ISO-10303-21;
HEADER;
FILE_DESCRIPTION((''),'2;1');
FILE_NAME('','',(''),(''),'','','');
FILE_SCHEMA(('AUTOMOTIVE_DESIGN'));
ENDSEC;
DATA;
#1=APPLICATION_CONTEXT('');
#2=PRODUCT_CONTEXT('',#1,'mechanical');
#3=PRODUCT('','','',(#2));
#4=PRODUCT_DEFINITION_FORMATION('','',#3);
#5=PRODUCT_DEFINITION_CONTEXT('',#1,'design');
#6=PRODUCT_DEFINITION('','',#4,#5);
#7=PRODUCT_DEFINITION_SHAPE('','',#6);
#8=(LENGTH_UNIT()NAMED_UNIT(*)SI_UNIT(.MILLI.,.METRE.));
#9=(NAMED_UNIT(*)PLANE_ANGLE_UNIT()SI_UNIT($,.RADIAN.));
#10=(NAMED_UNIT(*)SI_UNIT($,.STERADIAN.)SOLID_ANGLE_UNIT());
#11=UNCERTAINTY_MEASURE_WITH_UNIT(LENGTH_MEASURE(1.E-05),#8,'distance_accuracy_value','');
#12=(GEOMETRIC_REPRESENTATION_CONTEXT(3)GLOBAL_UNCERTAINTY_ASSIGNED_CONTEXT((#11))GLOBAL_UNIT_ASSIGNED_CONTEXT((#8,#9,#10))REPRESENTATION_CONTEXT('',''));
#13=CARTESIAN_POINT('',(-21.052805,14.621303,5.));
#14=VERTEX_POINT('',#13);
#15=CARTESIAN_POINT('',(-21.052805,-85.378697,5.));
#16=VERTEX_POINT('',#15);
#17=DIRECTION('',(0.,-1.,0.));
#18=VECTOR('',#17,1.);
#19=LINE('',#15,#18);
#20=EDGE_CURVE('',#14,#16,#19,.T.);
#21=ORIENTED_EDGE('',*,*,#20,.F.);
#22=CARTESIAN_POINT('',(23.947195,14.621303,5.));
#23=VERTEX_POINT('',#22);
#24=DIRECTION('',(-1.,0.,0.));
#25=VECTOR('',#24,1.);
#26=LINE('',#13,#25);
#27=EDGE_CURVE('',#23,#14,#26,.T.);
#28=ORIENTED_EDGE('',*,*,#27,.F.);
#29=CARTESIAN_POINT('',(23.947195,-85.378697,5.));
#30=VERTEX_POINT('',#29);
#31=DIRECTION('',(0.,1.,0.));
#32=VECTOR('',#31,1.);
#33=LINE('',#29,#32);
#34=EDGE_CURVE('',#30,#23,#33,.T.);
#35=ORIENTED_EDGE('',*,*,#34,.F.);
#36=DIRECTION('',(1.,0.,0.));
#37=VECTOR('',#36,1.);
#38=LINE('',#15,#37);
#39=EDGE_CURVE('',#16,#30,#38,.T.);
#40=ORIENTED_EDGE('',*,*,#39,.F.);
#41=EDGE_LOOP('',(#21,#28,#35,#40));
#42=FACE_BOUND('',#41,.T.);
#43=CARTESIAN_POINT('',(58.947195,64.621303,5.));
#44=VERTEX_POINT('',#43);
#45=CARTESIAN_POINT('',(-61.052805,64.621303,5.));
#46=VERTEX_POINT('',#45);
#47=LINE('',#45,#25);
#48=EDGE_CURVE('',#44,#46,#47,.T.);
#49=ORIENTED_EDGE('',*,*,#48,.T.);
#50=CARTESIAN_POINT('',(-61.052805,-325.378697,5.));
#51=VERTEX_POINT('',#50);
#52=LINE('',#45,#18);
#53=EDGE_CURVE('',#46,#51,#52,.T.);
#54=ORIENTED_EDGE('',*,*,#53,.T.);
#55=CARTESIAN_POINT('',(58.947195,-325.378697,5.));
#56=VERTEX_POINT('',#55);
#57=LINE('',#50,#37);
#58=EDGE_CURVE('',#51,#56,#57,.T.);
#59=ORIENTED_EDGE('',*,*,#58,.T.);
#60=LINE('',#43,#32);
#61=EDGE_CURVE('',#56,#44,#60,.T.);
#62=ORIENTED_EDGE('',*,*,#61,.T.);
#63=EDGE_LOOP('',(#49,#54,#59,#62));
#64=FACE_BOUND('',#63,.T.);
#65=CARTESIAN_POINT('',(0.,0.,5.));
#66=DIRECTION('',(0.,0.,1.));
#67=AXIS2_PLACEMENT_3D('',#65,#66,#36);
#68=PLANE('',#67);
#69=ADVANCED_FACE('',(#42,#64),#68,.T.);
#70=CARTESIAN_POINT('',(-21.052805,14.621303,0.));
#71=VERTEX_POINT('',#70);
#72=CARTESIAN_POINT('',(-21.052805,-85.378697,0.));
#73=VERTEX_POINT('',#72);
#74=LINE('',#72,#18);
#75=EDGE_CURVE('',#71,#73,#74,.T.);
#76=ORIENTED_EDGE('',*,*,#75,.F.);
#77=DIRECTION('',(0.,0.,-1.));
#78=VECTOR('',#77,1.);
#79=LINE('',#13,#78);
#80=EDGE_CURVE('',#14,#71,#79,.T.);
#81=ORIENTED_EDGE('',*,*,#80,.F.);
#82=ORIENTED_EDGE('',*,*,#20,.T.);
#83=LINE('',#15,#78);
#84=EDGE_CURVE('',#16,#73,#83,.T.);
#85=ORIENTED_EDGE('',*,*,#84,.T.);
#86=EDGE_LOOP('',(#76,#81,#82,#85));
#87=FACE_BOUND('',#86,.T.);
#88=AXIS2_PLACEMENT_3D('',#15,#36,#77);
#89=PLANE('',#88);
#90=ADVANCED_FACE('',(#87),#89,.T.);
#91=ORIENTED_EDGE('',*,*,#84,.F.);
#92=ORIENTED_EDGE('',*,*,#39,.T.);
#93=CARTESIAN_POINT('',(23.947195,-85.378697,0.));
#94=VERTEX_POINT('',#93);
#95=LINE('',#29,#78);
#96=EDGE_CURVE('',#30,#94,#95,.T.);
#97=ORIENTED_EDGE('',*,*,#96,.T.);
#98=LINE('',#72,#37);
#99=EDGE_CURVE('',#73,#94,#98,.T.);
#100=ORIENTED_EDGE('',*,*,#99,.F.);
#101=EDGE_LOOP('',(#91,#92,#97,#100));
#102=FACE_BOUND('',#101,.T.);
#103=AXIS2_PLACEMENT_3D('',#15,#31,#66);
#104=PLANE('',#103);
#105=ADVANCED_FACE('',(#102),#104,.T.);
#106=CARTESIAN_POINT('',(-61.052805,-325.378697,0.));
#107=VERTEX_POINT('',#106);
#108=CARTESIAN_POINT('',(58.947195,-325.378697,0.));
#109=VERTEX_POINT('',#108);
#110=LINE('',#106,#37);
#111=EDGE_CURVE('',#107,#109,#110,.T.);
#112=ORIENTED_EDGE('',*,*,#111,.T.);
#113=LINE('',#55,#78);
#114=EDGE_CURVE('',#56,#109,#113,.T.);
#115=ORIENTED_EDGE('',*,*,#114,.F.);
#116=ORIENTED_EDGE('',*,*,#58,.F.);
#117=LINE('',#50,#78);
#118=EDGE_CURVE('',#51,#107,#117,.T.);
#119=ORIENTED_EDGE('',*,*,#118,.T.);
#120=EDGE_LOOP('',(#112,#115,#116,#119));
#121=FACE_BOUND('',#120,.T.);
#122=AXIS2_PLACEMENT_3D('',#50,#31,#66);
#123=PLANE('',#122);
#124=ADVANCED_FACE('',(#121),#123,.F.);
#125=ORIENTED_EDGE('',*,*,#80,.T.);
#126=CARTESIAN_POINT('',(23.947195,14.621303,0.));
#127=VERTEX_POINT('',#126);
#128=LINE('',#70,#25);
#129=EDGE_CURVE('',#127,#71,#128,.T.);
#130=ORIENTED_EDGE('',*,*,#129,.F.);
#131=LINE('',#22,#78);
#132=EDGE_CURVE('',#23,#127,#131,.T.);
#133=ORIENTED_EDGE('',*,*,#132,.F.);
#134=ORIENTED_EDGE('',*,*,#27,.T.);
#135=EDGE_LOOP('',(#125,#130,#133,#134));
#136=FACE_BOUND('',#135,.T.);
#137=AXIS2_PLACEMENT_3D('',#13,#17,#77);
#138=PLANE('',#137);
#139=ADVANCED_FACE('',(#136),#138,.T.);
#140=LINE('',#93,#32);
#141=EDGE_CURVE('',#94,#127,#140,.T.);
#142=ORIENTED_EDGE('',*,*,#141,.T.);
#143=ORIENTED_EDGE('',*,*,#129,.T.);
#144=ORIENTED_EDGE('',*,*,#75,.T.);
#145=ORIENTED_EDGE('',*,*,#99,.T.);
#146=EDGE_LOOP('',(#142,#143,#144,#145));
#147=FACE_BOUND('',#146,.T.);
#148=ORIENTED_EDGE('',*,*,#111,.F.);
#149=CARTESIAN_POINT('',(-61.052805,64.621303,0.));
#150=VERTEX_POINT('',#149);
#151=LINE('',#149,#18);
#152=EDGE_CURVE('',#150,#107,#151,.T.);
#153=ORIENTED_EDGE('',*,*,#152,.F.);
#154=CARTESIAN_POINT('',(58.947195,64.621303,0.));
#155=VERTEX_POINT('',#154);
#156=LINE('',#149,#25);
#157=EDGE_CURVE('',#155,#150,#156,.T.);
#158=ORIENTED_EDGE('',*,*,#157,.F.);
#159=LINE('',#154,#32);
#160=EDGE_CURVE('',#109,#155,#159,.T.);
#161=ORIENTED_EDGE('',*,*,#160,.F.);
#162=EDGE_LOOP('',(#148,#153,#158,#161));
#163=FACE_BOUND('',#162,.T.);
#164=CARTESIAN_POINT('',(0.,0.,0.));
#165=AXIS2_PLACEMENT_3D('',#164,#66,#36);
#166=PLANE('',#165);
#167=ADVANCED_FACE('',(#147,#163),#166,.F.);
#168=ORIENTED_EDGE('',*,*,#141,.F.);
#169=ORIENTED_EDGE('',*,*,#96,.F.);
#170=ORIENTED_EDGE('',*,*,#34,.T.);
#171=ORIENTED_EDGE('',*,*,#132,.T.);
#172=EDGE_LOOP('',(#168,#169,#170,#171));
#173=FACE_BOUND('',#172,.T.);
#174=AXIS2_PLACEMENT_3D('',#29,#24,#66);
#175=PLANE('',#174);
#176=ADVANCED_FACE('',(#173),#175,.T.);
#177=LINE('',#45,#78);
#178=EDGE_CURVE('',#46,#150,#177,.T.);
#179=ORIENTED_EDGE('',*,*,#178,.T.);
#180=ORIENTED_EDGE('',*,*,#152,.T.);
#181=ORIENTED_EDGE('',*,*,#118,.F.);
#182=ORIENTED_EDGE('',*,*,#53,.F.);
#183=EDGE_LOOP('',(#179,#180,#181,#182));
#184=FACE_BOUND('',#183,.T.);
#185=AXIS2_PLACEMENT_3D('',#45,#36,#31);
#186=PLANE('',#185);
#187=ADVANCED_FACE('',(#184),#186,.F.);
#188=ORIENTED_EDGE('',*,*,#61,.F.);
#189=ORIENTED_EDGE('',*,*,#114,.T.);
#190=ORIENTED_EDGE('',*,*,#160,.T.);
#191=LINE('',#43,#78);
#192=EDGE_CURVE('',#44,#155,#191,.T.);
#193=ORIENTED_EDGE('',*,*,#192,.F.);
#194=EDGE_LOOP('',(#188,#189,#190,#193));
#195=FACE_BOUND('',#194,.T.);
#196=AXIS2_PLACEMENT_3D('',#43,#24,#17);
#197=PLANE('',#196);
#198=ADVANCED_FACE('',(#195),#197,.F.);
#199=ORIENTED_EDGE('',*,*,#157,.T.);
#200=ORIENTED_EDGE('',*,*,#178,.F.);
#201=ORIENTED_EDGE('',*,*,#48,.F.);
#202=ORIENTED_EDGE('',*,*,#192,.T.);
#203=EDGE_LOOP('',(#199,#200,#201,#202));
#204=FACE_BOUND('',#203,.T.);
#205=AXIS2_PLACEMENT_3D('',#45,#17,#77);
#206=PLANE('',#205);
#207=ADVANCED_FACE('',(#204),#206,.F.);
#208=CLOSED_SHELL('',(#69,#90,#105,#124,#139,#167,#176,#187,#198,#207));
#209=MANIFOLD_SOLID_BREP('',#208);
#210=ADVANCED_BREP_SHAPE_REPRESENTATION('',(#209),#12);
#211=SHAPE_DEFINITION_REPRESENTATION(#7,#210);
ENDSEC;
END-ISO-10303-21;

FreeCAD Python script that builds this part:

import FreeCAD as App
import Part
import Sketcher
from FreeCAD import Vector
Q = App.Units.Quantity


def add_polygon(sketch, points):
    """Adds a closed chain of lines whose ends are joined by coincident constraints."""
    first, n = sketch.GeometryCount, len(points)
    for a, b in zip(points, points[1:] + points[:1]):
        sketch.addGeometry(Part.LineSegment(App.Vector(*a, 0), App.Vector(*b, 0)), False)
    for i in range(n):
        sketch.addConstraint(Sketcher.Constraint("Coincident", first + i, 2, first + (i + 1) % n, 1))

doc = App.newDocument("Part")
body = doc.addObject("PartDesign::Body", "Body")

sketch1 = doc.addObject("Sketcher::SketchObject", "Sketch")
body.addObject(sketch1)
sketch1.AttachmentSupport = (doc.XY_Plane, [""])
sketch1.MapMode = "FlatFace"
add_polygon(sketch1, [(-61.052805, 64.621303), (-61.052805, -325.378697), (58.947195, -325.378697), (58.947195, 64.621303)])
add_polygon(sketch1, [(23.947195, -85.378697), (-21.052805, -85.378697), (-21.052805, 14.621303), (23.947195, 14.621303)])
sketch1.addConstraint([
    Sketcher.Constraint("Vertical", 0),
    Sketcher.Constraint("Horizontal", 1),
    Sketcher.Constraint("Vertical", 2),
    Sketcher.Constraint("Horizontal", 3),
    Sketcher.Constraint("Horizontal", 4),
    Sketcher.Constraint("Vertical", 5),
    Sketcher.Constraint("Horizontal", 6),
    Sketcher.Constraint("Vertical", 7),
    Sketcher.Constraint("DistanceX", 1, 1, 1, 2, Q("120 mm")),
    Sketcher.Constraint("DistanceX", 4, 2, 4, 1, Q("45 mm")),
    Sketcher.Constraint("DistanceY", 0, 2, 0, 1, Q("390 mm")),
    Sketcher.Constraint("DistanceY", 5, 1, 5, 2, Q("100 mm")),
    Sketcher.Constraint("DistanceX", 3, 2, 4, 2, Q("40 mm")),
    Sketcher.Constraint("DistanceY", 4, 2, 3, 2, Q("150 mm")),
    Sketcher.Constraint("DistanceX", 0, 2, -1, 1, Q("61.052805 mm")),
    Sketcher.Constraint("DistanceY", 0, 2, -1, 1, Q("325.378697 mm")),
])
pad1 = doc.addObject("PartDesign::Pad", "Pad")
body.addObject(pad1)
pad1.Profile = sketch1
pad1.Length = 5

doc.recompute()
